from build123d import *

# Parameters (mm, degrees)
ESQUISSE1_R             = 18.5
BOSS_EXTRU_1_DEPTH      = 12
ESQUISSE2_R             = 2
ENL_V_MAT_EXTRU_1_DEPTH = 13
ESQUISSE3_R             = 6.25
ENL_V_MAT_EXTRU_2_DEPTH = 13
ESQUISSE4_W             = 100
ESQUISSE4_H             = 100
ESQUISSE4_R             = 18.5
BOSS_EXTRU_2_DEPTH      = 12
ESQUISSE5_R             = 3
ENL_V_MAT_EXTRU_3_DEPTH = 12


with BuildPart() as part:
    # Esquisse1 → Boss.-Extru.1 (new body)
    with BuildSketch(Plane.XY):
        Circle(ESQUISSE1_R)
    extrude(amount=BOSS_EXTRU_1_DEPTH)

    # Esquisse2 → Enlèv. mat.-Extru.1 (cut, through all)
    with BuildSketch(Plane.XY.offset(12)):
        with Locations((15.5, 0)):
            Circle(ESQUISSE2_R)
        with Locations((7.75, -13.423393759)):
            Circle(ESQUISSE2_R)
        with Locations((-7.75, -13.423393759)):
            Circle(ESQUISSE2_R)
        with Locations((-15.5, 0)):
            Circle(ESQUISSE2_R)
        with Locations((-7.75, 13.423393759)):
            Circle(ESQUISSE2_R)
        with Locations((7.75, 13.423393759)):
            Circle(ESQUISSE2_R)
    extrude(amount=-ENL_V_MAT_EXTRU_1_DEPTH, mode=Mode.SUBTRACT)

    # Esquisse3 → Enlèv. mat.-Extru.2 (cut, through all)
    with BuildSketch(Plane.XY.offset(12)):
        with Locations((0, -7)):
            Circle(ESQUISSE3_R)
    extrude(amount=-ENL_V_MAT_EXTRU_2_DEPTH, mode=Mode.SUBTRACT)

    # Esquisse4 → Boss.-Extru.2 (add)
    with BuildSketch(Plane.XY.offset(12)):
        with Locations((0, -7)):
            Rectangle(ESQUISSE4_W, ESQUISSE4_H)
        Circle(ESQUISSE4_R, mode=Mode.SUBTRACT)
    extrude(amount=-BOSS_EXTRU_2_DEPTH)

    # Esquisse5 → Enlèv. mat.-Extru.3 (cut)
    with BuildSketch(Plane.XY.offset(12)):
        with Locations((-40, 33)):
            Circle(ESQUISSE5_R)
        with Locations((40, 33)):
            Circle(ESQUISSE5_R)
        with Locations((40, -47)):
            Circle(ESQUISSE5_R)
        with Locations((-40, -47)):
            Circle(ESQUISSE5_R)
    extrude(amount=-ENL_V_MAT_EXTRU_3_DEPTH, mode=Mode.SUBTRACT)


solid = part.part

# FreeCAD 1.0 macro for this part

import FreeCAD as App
import Part
import Sketcher
from FreeCAD import Vector


def add_polygon(sketch, points):
    """Adds a closed chain of lines whose ends are joined by coincident constraints."""
    first, n = sketch.GeometryCount, len(points)
    for a, b in zip(points, points[1:] + points[:1]):
        sketch.addGeometry(Part.LineSegment(App.Vector(*a, 0), App.Vector(*b, 0)), False)
    for i in range(n):
        sketch.addConstraint(Sketcher.Constraint("Coincident", first + i, 2, first + (i + 1) % n, 1))

doc = App.newDocument("Part")
body = doc.addObject("PartDesign::Body", "Body")

# Sketch on XY plane
sketch1 = doc.addObject("Sketcher::SketchObject", "Sketch")
body.addObject(sketch1)
sketch1.AttachmentSupport = (doc.XY_Plane, [""])
sketch1.MapMode = "FlatFace"
sketch1.addGeometry(Part.Circle(Vector(0, 0, 0), Vector(0, 0, 1), 18.5), False)
sketch1.addConstraint([
    Sketcher.Constraint("Coincident", 0, 3, -1, 1),
    Sketcher.Constraint("Diameter", 0, 37.0),
])
pad1 = doc.addObject("PartDesign::Pad", "Pad")
body.addObject(pad1)
pad1.Profile = sketch1
pad1.Length = 12

# Sketch on XY plane
sketch2 = doc.addObject("Sketcher::SketchObject", "Sketch001")
body.addObject(sketch2)
sketch2.AttachmentSupport = (doc.XY_Plane, [""])
sketch2.MapMode = "FlatFace"
sketch2.AttachmentOffset = App.Placement(Vector(0, 0, 12), App.Rotation())
sketch2.addGeometry([
    Part.Circle(Vector(15.5, 0, 0), Vector(0, 0, 1), 2),  # 0
    Part.Circle(Vector(7.75, -13.423394, 0), Vector(0, 0, 1), 2),  # 1
    Part.Circle(Vector(-7.75, -13.423394, 0), Vector(0, 0, 1), 2),  # 2
    Part.Circle(Vector(-15.5, 0, 0), Vector(0, 0, 1), 2),  # 3
    Part.Circle(Vector(-7.75, 13.423394, 0), Vector(0, 0, 1), 2),  # 4
    Part.Circle(Vector(7.75, 13.423394, 0), Vector(0, 0, 1), 2),  # 5
], False)
sketch2.addConstraint([
    Sketcher.Constraint("Equal", 0, 1),
    Sketcher.Constraint("Equal", 1, 2),
    Sketcher.Constraint("Equal", 2, 3),
    Sketcher.Constraint("Equal", 3, 4),
    Sketcher.Constraint("Equal", 4, 5),
    Sketcher.Constraint("Symmetric", 0, 3, 3, 3, -1, 1),
    Sketcher.Constraint("Symmetric", 1, 3, 4, 3, -1, 1),
    Sketcher.Constraint("Symmetric", 2, 3, 5, 3, -1, 1),
    Sketcher.Constraint("Symmetric", 1, 3, 2, 3, -2),
    Sketcher.Constraint("PointOnObject", 0, 3, -1),
    Sketcher.Constraint("Diameter", 0, 4.0),
    Sketcher.Constraint("DistanceX", 3, 3, 0, 3, 31.0),
    Sketcher.Constraint("DistanceX", 2, 3, 1, 3, 15.5),
    Sketcher.Constraint("DistanceY", 1, 3, -1, 1, 13.423394),
])
pocket1 = doc.addObject("PartDesign::Pocket", "Pocket")
body.addObject(pocket1)
pocket1.Profile = sketch2
pocket1.Type = "ThroughAll"

# Sketch on XY plane
sketch3 = doc.addObject("Sketcher::SketchObject", "Sketch002")
body.addObject(sketch3)
sketch3.AttachmentSupport = (doc.XY_Plane, [""])
sketch3.MapMode = "FlatFace"
sketch3.AttachmentOffset = App.Placement(Vector(0, 0, 12), App.Rotation())
sketch3.addGeometry(Part.Circle(Vector(0, -7, 0), Vector(0, 0, 1), 6.25), False)
sketch3.addConstraint([
    Sketcher.Constraint("PointOnObject", 0, 3, -2),
    Sketcher.Constraint("Diameter", 0, 12.5),
    Sketcher.Constraint("DistanceY", 0, 3, -1, 1, 7.0),
])
pocket2 = doc.addObject("PartDesign::Pocket", "Pocket001")
body.addObject(pocket2)
pocket2.Profile = sketch3
pocket2.Type = "ThroughAll"

# Sketch on XY plane
sketch4 = doc.addObject("Sketcher::SketchObject", "Sketch003")
body.addObject(sketch4)
sketch4.AttachmentSupport = (doc.XY_Plane, [""])
sketch4.MapMode = "FlatFace"
sketch4.AttachmentOffset = App.Placement(Vector(0, 0, 12), App.Rotation())
add_polygon(sketch4, [(-50, 43), (-50, -57), (50, -57), (50, 43)])  # lines 0-3
sketch4.addGeometry(Part.Circle(Vector(0, 0, 0), Vector(0, 0, 1), 18.5), False)  # 4
sketch4.addConstraint([
    Sketcher.Constraint("Vertical", 0),
    Sketcher.Constraint("Horizontal", 1),
    Sketcher.Constraint("Vertical", 2),
    Sketcher.Constraint("Horizontal", 3),
    Sketcher.Constraint("Coincident", 4, 3, -1, 1),
    Sketcher.Constraint("Equal", 3, 0),
    Sketcher.Constraint("Diameter", 4, 37.0),
    Sketcher.Constraint("DistanceX", 1, 1, 1, 2, 100.0),
    Sketcher.Constraint("DistanceX", 0, 2, -1, 1, 50.0),
    Sketcher.Constraint("DistanceY", 0, 2, -1, 1, 57.0),
])
pad2 = doc.addObject("PartDesign::Pad", "Pad001")
body.addObject(pad2)
pad2.Profile = sketch4
pad2.Length = 12
pad2.Reversed = True

# Sketch on XY plane
sketch5 = doc.addObject("Sketcher::SketchObject", "Sketch004")
body.addObject(sketch5)
sketch5.AttachmentSupport = (doc.XY_Plane, [""])
sketch5.MapMode = "FlatFace"
sketch5.AttachmentOffset = App.Placement(Vector(0, 0, 12), App.Rotation())
sketch5.addGeometry([
    Part.Circle(Vector(-40, 33, 0), Vector(0, 0, 1), 3),
    Part.Circle(Vector(40, 33, 0), Vector(0, 0, 1), 3),
    Part.Circle(Vector(40, -47, 0), Vector(0, 0, 1), 3),
    Part.Circle(Vector(-40, -47, 0), Vector(0, 0, 1), 3),
], False)
sketch5.addConstraint([
    Sketcher.Constraint("Equal", 0, 1),
    Sketcher.Constraint("Equal", 1, 2),
    Sketcher.Constraint("Equal", 2, 3),
    Sketcher.Constraint("Symmetric", 0, 3, 1, 3, -2),
    Sketcher.Constraint("Symmetric", 2, 3, 3, 3, -2),
    Sketcher.Constraint("Vertical", 1, 3, 2, 3),
    Sketcher.Constraint("Diameter", 0, 6.0),
    Sketcher.Constraint("DistanceX", 0, 3, -1, 1, 40.0),
    Sketcher.Constraint("DistanceY", -1, 1, 0, 3, 33.0),
    Sketcher.Constraint("DistanceY", 2, 3, -1, 1, 47.0),
])
pocket3 = doc.addObject("PartDesign::Pocket", "Pocket002")
body.addObject(pocket3)
pocket3.Profile = sketch5
pocket3.Length = 12

doc.recompute()
